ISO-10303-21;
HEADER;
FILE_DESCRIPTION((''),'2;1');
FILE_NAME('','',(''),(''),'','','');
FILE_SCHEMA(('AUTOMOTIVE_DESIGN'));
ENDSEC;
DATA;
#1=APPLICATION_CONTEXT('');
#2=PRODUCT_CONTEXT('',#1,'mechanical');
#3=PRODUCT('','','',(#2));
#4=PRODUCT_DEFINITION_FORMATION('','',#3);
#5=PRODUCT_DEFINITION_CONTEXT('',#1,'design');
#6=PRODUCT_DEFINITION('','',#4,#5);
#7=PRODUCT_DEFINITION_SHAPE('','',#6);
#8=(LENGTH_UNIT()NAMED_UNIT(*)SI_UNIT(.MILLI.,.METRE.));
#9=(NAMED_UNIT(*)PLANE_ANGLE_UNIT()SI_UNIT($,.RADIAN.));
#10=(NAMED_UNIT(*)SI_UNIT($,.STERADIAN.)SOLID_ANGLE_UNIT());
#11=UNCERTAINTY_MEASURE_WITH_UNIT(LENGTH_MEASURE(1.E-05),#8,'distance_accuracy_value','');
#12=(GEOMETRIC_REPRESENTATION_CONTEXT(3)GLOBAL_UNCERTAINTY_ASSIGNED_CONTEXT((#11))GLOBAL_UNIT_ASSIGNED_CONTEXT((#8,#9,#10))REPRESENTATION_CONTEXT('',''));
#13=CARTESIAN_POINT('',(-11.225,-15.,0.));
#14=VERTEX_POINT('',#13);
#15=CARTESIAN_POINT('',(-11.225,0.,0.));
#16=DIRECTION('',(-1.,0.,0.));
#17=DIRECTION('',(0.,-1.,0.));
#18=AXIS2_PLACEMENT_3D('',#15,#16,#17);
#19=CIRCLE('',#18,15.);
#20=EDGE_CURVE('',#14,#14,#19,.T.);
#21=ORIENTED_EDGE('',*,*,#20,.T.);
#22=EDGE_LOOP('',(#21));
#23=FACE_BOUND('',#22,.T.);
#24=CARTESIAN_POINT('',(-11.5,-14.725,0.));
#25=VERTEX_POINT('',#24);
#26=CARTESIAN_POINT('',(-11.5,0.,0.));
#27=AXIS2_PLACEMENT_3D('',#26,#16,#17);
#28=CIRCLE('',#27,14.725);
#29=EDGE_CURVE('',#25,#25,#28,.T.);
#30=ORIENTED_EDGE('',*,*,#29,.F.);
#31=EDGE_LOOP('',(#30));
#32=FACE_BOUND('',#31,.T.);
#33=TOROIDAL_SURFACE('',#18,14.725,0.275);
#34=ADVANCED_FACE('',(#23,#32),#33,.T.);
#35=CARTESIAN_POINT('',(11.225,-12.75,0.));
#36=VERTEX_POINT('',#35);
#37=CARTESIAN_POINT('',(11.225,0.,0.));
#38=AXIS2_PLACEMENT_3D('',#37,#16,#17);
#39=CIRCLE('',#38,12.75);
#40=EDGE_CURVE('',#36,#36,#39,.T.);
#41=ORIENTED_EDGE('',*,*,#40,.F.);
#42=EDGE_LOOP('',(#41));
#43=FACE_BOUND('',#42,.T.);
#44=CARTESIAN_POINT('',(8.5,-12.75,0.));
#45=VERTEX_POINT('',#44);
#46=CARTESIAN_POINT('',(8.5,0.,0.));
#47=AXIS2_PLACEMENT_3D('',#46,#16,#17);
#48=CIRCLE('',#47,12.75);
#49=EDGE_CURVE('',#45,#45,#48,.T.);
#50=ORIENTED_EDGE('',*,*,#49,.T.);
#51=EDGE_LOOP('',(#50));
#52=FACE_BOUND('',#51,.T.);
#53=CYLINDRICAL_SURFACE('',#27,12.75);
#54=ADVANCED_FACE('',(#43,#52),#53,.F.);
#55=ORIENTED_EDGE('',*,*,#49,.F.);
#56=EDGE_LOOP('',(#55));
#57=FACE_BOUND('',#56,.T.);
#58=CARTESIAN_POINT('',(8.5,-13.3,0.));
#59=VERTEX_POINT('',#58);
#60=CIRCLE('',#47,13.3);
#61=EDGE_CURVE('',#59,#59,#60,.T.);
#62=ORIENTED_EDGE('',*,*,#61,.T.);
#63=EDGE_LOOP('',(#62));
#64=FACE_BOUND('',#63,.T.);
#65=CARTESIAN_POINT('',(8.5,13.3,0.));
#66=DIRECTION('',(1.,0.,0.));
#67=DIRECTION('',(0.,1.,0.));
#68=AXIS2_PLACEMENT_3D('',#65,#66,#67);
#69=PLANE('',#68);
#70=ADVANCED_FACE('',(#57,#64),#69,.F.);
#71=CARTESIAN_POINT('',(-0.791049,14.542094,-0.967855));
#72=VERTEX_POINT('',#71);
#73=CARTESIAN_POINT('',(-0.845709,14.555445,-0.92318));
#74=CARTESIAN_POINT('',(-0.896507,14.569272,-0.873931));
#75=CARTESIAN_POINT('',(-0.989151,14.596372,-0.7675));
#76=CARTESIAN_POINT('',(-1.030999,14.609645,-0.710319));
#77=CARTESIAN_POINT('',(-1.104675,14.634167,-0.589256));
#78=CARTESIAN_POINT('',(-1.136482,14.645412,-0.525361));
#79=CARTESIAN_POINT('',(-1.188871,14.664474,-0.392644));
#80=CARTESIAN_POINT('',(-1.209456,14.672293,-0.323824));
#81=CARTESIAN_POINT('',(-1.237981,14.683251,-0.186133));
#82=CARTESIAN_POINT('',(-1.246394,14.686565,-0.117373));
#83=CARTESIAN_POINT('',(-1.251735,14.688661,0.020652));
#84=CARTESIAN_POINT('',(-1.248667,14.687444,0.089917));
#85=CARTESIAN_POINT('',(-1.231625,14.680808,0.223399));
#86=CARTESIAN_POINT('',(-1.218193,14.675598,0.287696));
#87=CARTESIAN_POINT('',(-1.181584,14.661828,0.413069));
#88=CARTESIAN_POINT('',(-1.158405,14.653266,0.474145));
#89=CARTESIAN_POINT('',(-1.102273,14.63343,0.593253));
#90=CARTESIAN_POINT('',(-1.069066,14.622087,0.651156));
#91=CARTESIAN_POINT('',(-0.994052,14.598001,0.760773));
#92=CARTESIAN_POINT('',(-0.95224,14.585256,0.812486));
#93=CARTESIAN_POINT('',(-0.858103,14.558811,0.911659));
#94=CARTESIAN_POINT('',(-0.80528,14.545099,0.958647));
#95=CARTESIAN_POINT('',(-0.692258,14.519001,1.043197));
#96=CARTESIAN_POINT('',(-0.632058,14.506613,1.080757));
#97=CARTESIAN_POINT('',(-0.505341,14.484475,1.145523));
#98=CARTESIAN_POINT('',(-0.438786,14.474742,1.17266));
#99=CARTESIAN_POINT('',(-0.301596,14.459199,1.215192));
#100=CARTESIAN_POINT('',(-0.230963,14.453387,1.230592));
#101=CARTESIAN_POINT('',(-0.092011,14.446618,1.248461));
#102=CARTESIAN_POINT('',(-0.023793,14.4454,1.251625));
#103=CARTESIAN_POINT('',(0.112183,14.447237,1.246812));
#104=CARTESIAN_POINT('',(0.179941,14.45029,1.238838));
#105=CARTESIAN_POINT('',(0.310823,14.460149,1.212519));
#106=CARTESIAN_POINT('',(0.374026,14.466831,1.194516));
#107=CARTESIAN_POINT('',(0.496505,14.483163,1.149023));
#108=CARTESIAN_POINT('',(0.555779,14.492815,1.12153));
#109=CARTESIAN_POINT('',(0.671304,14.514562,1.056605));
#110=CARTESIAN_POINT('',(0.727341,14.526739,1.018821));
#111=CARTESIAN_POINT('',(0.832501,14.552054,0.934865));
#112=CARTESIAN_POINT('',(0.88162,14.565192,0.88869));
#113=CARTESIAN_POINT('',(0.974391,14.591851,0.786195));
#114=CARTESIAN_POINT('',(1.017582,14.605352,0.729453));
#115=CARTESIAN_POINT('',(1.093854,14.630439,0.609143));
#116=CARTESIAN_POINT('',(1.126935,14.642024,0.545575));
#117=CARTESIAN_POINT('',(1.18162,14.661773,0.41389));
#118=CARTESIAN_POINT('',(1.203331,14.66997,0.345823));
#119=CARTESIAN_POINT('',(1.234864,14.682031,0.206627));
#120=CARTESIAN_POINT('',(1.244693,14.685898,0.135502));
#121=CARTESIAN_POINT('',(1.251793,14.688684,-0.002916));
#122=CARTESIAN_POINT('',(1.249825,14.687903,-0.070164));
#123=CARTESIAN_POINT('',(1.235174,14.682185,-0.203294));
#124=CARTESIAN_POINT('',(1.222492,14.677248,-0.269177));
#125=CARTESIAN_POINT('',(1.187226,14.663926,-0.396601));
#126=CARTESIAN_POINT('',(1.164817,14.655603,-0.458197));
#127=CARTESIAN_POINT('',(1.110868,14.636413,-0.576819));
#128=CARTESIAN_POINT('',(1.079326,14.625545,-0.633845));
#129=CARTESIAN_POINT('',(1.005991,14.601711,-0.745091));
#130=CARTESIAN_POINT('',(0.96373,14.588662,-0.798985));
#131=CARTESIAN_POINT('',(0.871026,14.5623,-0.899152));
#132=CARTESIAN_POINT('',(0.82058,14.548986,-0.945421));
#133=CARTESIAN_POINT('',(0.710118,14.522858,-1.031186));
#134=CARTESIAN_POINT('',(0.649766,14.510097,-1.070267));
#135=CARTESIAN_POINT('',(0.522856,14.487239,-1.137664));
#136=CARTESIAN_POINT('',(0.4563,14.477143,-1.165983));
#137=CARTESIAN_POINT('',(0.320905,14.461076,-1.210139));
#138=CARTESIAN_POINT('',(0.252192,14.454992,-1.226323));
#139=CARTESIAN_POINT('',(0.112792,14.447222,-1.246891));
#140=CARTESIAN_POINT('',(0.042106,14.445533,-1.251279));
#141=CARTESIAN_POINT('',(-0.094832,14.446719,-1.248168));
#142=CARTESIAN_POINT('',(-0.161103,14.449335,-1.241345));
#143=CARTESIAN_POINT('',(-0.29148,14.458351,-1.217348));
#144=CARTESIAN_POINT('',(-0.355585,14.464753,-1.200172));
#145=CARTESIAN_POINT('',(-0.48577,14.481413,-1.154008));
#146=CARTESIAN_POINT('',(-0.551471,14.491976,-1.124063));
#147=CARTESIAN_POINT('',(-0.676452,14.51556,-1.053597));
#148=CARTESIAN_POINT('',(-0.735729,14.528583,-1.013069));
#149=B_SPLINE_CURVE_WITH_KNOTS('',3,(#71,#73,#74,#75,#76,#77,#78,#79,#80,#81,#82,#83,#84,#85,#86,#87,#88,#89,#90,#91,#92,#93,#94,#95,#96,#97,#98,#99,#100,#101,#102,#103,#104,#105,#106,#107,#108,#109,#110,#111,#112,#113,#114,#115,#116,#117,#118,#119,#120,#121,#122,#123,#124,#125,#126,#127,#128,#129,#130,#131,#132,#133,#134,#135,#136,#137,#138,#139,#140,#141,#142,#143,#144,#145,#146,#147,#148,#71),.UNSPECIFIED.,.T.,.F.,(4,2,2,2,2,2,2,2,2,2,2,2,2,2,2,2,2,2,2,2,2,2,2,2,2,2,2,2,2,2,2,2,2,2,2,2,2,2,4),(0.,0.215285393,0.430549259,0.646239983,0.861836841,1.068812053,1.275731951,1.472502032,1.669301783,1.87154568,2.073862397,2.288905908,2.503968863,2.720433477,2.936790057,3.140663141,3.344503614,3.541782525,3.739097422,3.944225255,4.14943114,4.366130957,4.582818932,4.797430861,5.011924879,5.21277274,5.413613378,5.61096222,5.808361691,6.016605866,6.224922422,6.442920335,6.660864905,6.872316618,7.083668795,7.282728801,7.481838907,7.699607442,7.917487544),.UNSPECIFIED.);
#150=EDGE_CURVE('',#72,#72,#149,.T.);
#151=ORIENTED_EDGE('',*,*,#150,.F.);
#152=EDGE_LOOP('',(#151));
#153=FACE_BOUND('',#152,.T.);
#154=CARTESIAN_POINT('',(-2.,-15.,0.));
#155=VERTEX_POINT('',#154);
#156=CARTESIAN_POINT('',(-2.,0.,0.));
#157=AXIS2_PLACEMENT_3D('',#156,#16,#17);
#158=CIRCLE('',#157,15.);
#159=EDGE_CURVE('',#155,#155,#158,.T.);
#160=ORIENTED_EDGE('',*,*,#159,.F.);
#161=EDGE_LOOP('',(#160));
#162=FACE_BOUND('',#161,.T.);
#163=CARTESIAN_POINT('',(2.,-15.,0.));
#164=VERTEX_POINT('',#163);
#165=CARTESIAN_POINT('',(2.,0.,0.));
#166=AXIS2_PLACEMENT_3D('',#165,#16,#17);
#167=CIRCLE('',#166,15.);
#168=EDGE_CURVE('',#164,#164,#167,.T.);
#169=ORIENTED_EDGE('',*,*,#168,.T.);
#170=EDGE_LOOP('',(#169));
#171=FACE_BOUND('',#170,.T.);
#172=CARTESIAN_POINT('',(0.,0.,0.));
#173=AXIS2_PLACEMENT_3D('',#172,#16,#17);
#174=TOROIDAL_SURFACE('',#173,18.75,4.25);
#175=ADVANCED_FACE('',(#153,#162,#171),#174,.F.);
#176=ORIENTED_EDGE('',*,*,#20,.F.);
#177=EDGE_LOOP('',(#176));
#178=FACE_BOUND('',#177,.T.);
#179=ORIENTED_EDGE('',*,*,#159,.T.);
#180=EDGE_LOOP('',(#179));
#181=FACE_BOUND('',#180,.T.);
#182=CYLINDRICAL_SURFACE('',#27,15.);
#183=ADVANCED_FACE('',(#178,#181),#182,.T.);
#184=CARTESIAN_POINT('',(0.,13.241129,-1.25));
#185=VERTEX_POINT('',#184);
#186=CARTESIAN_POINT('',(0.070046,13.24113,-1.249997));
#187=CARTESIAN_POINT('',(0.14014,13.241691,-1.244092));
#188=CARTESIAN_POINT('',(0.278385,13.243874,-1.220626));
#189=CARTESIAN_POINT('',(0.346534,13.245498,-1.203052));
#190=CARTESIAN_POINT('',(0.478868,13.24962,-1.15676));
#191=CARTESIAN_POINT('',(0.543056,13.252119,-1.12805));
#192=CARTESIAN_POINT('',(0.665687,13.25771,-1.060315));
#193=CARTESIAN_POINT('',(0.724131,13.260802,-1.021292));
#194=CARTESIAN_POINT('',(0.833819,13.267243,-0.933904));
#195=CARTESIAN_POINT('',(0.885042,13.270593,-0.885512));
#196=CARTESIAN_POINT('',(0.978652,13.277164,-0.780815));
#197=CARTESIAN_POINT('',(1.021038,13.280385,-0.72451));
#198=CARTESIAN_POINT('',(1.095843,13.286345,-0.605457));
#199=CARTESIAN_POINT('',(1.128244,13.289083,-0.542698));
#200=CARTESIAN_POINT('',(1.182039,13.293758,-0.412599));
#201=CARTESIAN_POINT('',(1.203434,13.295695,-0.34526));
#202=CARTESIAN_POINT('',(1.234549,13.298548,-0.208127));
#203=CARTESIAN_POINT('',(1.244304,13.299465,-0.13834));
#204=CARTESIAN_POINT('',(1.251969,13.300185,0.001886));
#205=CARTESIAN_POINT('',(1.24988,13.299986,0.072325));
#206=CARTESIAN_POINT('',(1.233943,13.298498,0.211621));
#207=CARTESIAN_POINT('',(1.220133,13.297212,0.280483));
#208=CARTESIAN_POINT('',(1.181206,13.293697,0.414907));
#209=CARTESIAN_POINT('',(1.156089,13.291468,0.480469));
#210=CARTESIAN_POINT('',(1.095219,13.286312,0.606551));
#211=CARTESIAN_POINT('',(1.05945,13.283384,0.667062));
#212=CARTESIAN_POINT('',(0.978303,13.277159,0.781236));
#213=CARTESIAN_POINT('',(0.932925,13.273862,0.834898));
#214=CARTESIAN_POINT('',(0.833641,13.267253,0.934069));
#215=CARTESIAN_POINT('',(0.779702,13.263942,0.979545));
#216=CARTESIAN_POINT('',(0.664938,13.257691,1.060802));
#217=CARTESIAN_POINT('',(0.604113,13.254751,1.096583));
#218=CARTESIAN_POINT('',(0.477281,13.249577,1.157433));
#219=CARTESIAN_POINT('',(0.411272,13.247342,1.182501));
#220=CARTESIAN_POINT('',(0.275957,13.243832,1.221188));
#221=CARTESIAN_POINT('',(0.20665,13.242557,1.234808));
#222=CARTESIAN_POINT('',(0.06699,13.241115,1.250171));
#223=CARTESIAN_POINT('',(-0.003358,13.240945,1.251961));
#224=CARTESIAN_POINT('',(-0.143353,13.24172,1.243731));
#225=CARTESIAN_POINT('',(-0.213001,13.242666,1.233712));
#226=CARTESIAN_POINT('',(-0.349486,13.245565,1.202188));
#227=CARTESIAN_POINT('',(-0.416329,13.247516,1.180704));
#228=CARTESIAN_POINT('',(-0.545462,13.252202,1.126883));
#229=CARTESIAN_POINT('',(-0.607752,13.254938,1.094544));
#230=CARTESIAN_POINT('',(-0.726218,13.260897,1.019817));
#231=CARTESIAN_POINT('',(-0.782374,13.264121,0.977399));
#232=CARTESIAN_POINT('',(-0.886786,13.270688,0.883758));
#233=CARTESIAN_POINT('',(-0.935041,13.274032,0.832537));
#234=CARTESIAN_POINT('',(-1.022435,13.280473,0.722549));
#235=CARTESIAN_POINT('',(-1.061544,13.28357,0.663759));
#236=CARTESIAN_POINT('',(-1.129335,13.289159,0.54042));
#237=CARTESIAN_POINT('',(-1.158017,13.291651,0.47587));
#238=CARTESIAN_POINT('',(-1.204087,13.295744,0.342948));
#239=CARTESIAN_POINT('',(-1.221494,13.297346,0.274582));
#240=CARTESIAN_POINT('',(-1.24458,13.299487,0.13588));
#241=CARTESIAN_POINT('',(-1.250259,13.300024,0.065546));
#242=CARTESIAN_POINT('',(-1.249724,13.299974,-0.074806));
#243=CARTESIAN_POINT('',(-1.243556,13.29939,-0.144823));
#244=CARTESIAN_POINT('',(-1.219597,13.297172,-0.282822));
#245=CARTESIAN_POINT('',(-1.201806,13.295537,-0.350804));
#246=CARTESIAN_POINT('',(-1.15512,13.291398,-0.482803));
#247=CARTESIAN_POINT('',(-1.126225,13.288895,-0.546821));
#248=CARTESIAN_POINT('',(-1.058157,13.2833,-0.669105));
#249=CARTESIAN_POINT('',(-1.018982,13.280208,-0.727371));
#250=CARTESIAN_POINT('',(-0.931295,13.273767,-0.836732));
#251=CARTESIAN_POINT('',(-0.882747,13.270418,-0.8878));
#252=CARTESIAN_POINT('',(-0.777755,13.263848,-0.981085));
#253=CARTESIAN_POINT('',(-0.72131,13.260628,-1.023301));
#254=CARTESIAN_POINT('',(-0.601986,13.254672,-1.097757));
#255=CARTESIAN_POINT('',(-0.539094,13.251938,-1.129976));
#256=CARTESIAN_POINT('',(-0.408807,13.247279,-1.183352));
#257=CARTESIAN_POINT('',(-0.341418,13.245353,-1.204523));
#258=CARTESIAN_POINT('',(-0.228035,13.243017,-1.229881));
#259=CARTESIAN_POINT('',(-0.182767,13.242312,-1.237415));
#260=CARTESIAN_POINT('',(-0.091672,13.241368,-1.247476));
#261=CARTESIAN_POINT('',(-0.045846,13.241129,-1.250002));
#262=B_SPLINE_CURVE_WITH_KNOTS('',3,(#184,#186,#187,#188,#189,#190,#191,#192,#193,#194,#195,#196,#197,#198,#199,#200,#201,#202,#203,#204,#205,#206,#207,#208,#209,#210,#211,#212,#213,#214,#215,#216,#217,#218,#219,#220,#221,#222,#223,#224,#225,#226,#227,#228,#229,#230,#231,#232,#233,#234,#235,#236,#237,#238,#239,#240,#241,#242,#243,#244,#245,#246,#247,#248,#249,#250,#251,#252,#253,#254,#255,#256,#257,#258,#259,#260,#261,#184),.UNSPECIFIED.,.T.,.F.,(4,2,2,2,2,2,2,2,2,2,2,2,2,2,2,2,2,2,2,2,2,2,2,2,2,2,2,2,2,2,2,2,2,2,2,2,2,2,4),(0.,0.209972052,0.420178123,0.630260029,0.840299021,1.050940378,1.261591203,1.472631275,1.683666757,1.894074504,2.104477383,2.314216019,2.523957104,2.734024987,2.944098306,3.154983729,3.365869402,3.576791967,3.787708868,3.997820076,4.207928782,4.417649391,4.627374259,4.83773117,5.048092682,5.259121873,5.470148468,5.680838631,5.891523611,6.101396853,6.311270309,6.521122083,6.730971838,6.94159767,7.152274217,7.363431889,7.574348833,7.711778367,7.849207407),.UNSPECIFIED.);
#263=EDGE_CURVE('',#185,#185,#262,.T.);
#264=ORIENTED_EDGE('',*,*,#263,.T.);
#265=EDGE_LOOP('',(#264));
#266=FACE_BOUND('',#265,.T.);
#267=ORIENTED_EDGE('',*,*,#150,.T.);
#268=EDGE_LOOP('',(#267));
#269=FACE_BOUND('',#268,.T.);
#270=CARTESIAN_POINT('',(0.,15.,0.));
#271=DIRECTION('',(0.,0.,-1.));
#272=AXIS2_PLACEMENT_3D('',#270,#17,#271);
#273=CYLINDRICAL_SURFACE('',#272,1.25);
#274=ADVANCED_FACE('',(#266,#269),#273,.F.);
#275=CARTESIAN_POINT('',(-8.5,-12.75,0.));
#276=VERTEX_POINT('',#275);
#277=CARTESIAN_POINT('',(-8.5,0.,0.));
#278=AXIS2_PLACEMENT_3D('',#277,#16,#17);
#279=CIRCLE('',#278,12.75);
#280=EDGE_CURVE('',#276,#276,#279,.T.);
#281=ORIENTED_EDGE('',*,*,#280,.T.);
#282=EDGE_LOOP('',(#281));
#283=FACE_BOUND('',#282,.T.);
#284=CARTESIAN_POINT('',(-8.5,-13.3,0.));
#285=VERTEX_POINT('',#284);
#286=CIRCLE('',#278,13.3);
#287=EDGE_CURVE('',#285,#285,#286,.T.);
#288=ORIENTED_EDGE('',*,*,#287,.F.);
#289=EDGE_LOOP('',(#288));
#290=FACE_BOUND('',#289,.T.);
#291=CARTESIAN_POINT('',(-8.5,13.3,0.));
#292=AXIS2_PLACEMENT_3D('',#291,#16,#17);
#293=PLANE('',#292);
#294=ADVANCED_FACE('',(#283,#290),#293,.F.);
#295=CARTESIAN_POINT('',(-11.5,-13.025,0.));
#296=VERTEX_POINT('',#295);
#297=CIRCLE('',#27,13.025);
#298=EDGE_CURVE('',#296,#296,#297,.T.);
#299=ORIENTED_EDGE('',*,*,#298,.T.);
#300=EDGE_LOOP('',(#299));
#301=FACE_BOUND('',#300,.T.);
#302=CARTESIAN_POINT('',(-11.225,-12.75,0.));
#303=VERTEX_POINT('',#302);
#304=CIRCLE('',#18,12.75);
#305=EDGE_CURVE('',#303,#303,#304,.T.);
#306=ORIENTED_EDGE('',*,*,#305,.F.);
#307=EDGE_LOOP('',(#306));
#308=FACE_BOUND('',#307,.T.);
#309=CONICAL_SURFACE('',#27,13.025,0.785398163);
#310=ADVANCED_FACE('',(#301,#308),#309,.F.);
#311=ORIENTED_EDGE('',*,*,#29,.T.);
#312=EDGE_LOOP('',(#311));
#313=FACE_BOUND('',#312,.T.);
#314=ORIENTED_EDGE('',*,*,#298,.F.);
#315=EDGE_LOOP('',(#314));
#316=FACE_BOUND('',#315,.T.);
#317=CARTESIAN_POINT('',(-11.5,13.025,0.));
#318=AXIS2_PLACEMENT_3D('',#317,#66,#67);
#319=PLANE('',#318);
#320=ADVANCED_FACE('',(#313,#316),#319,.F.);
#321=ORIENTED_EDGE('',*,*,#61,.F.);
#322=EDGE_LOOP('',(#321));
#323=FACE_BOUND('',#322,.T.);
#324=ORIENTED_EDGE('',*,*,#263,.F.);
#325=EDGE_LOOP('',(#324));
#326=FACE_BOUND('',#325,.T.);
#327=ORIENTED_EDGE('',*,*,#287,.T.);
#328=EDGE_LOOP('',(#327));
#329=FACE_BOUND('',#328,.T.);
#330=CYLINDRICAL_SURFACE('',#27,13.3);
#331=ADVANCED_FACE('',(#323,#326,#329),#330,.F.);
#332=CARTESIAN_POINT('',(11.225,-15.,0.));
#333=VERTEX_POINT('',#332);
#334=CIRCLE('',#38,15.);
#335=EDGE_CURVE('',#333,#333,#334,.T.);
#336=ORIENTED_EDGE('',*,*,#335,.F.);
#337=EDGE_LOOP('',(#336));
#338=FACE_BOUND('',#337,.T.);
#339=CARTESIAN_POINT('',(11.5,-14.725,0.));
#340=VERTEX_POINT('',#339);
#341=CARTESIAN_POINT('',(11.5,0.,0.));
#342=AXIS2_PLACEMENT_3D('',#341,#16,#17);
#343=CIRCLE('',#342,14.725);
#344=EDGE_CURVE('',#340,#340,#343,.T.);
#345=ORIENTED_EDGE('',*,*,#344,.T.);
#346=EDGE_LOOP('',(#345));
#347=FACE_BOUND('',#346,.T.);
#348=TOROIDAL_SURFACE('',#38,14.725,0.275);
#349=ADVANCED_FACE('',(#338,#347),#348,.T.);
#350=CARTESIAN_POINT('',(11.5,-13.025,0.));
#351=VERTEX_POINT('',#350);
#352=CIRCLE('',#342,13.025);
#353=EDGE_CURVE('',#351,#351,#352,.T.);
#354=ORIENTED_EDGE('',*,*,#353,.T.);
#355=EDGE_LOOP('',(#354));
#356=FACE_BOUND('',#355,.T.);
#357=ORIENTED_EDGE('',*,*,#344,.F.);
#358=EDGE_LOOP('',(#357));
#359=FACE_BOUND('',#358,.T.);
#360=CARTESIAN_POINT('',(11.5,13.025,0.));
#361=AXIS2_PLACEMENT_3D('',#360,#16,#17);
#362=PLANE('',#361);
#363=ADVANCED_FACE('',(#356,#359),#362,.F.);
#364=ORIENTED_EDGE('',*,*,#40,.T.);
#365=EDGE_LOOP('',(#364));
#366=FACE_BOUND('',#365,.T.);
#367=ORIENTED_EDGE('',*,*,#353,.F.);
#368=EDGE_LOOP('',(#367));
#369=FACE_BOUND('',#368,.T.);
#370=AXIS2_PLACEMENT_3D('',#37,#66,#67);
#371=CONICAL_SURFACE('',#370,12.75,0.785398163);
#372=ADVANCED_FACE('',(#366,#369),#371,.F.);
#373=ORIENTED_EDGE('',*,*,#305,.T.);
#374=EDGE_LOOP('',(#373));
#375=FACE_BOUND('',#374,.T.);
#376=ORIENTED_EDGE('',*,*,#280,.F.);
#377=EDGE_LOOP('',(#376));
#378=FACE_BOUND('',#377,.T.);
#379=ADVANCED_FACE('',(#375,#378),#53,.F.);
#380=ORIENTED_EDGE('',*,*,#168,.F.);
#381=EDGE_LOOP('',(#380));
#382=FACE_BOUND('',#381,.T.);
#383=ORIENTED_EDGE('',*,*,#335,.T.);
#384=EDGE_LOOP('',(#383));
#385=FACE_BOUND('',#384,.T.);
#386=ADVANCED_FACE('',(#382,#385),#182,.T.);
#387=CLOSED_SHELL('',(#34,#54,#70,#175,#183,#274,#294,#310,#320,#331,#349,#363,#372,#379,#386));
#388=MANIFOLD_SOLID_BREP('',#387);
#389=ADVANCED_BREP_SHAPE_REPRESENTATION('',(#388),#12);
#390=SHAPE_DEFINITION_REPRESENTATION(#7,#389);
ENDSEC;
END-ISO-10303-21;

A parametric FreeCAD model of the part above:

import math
import FreeCAD as App
import Part
import Sketcher
Q = App.Units.Quantity

doc = App.newDocument("Part")
body = doc.addObject("PartDesign::Body", "Body")

# Sketch on XY plane
sketch1 = body.newObject("Sketcher::SketchObject", "Sketch")
sketch1.AttachmentSupport = (doc.getObject("XY_Plane"), [""])
sketch1.MapMode = "FlatFace"
sketch1.addGeometry([
    Part.LineSegment(App.Vector(-8.5, 13.3, 0), App.Vector(8.5, 13.3, 0)),  # 0
    Part.LineSegment(App.Vector(8.5, 13.3, 0), App.Vector(8.5, 12.75, 0)),  # 1
    Part.LineSegment(App.Vector(8.5, 12.75, 0), App.Vector(11.22, 12.75, 0)),  # 2
    Part.LineSegment(App.Vector(11.22, 12.75, 0), App.Vector(11.5, 13.03, 0)),  # 3
    Part.LineSegment(App.Vector(11.5, 13.03, 0), App.Vector(11.5, 14.72, 0)),  # 4
    Part.ArcOfCircle(Part.Circle(App.Vector(11.23, 14.73, 0), App.Vector(0, 0, 1), 0.27), math.radians(0), math.radians(90)),  # 5
    Part.LineSegment(App.Vector(11.22, 15, 0), App.Vector(2, 15, 0)),  # 6
    Part.ArcOfCircle(Part.Circle(App.Vector(0, 18.75, 0), App.Vector(0, 0, 1), 4.25), math.radians(-118), math.radians(-62)),  # 7
    Part.LineSegment(App.Vector(-2, 15, 0), App.Vector(-11.22, 15, 0)),  # 8
    Part.ArcOfCircle(Part.Circle(App.Vector(-11.23, 14.73, 0), App.Vector(0, 0, 1), 0.27), math.radians(90), math.radians(180)),  # 9
    Part.LineSegment(App.Vector(-11.5, 14.72, 0), App.Vector(-11.5, 13.03, 0)),  # 10
    Part.LineSegment(App.Vector(-11.5, 13.03, 0), App.Vector(-11.22, 12.75, 0)),  # 11
    Part.LineSegment(App.Vector(-11.22, 12.75, 0), App.Vector(-8.5, 12.75, 0)),  # 12
    Part.LineSegment(App.Vector(-8.5, 12.75, 0), App.Vector(-8.5, 13.3, 0)),  # 13
], False)
sketch1.addConstraint([
    Sketcher.Constraint("Coincident", 0, 2, 1, 1),
    Sketcher.Constraint("Coincident", 1, 2, 2, 1),
    Sketcher.Constraint("Coincident", 2, 2, 3, 1),
    Sketcher.Constraint("Coincident", 3, 2, 4, 1),
    Sketcher.Constraint("Tangent", 4, 2, 5, 1),
    Sketcher.Constraint("Tangent", 5, 2, 6, 1),
    Sketcher.Constraint("Coincident", 6, 2, 7, 2),
    Sketcher.Constraint("Coincident", 7, 1, 8, 1),
    Sketcher.Constraint("Tangent", 8, 2, 9, 1),
    Sketcher.Constraint("Tangent", 9, 2, 10, 1),
    Sketcher.Constraint("Coincident", 10, 2, 11, 1),
    Sketcher.Constraint("Coincident", 11, 2, 12, 1),
    Sketcher.Constraint("Coincident", 12, 2, 13, 1),
    Sketcher.Constraint("Coincident", 13, 2, 0, 1),
    Sketcher.Constraint("Horizontal", 0),
    Sketcher.Constraint("Vertical", 1),
    Sketcher.Constraint("Horizontal", 2),
    Sketcher.Constraint("Vertical", 4),
    Sketcher.Constraint("Horizontal", 6),
    Sketcher.Constraint("Horizontal", 8),
    Sketcher.Constraint("Vertical", 10),
    Sketcher.Constraint("Horizontal", 12),
    Sketcher.Constraint("Vertical", 13),
    Sketcher.Constraint("Equal", 5, 9),
    Sketcher.Constraint("Symmetric", 5, 3, 9, 3, -2),
    Sketcher.Constraint("Symmetric", 2, 2, 11, 2, -2),
    Sketcher.Constraint("PointOnObject", 7, 3, -2),
    Sketcher.Constraint("Perpendicular", 3, 11),
    Sketcher.Constraint("Horizontal", 3, 2, 10, 2),
    Sketcher.Constraint("Vertical", 5, 3, 2, 2),
    Sketcher.Constraint("Equal", 2, 12),
    Sketcher.Constraint("DistanceX", 0, 1, 0, 2, Q("17 mm")),
    Sketcher.Constraint("Radius", 7, Q("4.25 mm")),
    Sketcher.Constraint("DistanceY", 4, 1, 4, 2, Q("1.7 mm")),
    Sketcher.Constraint("DistanceY", -1, 1, 5, 2, Q("15 mm")),
    Sketcher.Constraint("DistanceX", -1, 1, 6, 2, Q("2 mm")),
    Sketcher.Constraint("Radius", 5, Q("0.275 mm")),
    Sketcher.Constraint("DistanceX", 0, 2, 3, 2, Q("3 mm")),
    Sketcher.Constraint("DistanceY", 1, 2, 1, 1, Q("0.55 mm")),
])
revolution = body.newObject("PartDesign::Revolution", "Revolution")
revolution.Profile = sketch1
revolution.ReferenceAxis = (sketch1, ["H_Axis"])
revolution.Angle = 360

# Sketch on XZ plane
sketch2 = body.newObject("Sketcher::SketchObject", "Sketch001")
sketch2.AttachmentSupport = (doc.getObject("XZ_Plane"), [""])
sketch2.MapMode = "FlatFace"
sketch2.addGeometry(Part.Circle(App.Vector(0, 0, 0), App.Vector(0, 0, 1), 1.2), False)
sketch2.addConstraint([
    Sketcher.Constraint("Coincident", 0, 3, -1, 1),
    Sketcher.Constraint("Diameter", 0, Q("2.5 mm")),
])
pocket1 = body.newObject("PartDesign::Pocket", "Pocket")
pocket1.Profile = sketch2
pocket1.Type = "ThroughAll"

doc.recompute()
